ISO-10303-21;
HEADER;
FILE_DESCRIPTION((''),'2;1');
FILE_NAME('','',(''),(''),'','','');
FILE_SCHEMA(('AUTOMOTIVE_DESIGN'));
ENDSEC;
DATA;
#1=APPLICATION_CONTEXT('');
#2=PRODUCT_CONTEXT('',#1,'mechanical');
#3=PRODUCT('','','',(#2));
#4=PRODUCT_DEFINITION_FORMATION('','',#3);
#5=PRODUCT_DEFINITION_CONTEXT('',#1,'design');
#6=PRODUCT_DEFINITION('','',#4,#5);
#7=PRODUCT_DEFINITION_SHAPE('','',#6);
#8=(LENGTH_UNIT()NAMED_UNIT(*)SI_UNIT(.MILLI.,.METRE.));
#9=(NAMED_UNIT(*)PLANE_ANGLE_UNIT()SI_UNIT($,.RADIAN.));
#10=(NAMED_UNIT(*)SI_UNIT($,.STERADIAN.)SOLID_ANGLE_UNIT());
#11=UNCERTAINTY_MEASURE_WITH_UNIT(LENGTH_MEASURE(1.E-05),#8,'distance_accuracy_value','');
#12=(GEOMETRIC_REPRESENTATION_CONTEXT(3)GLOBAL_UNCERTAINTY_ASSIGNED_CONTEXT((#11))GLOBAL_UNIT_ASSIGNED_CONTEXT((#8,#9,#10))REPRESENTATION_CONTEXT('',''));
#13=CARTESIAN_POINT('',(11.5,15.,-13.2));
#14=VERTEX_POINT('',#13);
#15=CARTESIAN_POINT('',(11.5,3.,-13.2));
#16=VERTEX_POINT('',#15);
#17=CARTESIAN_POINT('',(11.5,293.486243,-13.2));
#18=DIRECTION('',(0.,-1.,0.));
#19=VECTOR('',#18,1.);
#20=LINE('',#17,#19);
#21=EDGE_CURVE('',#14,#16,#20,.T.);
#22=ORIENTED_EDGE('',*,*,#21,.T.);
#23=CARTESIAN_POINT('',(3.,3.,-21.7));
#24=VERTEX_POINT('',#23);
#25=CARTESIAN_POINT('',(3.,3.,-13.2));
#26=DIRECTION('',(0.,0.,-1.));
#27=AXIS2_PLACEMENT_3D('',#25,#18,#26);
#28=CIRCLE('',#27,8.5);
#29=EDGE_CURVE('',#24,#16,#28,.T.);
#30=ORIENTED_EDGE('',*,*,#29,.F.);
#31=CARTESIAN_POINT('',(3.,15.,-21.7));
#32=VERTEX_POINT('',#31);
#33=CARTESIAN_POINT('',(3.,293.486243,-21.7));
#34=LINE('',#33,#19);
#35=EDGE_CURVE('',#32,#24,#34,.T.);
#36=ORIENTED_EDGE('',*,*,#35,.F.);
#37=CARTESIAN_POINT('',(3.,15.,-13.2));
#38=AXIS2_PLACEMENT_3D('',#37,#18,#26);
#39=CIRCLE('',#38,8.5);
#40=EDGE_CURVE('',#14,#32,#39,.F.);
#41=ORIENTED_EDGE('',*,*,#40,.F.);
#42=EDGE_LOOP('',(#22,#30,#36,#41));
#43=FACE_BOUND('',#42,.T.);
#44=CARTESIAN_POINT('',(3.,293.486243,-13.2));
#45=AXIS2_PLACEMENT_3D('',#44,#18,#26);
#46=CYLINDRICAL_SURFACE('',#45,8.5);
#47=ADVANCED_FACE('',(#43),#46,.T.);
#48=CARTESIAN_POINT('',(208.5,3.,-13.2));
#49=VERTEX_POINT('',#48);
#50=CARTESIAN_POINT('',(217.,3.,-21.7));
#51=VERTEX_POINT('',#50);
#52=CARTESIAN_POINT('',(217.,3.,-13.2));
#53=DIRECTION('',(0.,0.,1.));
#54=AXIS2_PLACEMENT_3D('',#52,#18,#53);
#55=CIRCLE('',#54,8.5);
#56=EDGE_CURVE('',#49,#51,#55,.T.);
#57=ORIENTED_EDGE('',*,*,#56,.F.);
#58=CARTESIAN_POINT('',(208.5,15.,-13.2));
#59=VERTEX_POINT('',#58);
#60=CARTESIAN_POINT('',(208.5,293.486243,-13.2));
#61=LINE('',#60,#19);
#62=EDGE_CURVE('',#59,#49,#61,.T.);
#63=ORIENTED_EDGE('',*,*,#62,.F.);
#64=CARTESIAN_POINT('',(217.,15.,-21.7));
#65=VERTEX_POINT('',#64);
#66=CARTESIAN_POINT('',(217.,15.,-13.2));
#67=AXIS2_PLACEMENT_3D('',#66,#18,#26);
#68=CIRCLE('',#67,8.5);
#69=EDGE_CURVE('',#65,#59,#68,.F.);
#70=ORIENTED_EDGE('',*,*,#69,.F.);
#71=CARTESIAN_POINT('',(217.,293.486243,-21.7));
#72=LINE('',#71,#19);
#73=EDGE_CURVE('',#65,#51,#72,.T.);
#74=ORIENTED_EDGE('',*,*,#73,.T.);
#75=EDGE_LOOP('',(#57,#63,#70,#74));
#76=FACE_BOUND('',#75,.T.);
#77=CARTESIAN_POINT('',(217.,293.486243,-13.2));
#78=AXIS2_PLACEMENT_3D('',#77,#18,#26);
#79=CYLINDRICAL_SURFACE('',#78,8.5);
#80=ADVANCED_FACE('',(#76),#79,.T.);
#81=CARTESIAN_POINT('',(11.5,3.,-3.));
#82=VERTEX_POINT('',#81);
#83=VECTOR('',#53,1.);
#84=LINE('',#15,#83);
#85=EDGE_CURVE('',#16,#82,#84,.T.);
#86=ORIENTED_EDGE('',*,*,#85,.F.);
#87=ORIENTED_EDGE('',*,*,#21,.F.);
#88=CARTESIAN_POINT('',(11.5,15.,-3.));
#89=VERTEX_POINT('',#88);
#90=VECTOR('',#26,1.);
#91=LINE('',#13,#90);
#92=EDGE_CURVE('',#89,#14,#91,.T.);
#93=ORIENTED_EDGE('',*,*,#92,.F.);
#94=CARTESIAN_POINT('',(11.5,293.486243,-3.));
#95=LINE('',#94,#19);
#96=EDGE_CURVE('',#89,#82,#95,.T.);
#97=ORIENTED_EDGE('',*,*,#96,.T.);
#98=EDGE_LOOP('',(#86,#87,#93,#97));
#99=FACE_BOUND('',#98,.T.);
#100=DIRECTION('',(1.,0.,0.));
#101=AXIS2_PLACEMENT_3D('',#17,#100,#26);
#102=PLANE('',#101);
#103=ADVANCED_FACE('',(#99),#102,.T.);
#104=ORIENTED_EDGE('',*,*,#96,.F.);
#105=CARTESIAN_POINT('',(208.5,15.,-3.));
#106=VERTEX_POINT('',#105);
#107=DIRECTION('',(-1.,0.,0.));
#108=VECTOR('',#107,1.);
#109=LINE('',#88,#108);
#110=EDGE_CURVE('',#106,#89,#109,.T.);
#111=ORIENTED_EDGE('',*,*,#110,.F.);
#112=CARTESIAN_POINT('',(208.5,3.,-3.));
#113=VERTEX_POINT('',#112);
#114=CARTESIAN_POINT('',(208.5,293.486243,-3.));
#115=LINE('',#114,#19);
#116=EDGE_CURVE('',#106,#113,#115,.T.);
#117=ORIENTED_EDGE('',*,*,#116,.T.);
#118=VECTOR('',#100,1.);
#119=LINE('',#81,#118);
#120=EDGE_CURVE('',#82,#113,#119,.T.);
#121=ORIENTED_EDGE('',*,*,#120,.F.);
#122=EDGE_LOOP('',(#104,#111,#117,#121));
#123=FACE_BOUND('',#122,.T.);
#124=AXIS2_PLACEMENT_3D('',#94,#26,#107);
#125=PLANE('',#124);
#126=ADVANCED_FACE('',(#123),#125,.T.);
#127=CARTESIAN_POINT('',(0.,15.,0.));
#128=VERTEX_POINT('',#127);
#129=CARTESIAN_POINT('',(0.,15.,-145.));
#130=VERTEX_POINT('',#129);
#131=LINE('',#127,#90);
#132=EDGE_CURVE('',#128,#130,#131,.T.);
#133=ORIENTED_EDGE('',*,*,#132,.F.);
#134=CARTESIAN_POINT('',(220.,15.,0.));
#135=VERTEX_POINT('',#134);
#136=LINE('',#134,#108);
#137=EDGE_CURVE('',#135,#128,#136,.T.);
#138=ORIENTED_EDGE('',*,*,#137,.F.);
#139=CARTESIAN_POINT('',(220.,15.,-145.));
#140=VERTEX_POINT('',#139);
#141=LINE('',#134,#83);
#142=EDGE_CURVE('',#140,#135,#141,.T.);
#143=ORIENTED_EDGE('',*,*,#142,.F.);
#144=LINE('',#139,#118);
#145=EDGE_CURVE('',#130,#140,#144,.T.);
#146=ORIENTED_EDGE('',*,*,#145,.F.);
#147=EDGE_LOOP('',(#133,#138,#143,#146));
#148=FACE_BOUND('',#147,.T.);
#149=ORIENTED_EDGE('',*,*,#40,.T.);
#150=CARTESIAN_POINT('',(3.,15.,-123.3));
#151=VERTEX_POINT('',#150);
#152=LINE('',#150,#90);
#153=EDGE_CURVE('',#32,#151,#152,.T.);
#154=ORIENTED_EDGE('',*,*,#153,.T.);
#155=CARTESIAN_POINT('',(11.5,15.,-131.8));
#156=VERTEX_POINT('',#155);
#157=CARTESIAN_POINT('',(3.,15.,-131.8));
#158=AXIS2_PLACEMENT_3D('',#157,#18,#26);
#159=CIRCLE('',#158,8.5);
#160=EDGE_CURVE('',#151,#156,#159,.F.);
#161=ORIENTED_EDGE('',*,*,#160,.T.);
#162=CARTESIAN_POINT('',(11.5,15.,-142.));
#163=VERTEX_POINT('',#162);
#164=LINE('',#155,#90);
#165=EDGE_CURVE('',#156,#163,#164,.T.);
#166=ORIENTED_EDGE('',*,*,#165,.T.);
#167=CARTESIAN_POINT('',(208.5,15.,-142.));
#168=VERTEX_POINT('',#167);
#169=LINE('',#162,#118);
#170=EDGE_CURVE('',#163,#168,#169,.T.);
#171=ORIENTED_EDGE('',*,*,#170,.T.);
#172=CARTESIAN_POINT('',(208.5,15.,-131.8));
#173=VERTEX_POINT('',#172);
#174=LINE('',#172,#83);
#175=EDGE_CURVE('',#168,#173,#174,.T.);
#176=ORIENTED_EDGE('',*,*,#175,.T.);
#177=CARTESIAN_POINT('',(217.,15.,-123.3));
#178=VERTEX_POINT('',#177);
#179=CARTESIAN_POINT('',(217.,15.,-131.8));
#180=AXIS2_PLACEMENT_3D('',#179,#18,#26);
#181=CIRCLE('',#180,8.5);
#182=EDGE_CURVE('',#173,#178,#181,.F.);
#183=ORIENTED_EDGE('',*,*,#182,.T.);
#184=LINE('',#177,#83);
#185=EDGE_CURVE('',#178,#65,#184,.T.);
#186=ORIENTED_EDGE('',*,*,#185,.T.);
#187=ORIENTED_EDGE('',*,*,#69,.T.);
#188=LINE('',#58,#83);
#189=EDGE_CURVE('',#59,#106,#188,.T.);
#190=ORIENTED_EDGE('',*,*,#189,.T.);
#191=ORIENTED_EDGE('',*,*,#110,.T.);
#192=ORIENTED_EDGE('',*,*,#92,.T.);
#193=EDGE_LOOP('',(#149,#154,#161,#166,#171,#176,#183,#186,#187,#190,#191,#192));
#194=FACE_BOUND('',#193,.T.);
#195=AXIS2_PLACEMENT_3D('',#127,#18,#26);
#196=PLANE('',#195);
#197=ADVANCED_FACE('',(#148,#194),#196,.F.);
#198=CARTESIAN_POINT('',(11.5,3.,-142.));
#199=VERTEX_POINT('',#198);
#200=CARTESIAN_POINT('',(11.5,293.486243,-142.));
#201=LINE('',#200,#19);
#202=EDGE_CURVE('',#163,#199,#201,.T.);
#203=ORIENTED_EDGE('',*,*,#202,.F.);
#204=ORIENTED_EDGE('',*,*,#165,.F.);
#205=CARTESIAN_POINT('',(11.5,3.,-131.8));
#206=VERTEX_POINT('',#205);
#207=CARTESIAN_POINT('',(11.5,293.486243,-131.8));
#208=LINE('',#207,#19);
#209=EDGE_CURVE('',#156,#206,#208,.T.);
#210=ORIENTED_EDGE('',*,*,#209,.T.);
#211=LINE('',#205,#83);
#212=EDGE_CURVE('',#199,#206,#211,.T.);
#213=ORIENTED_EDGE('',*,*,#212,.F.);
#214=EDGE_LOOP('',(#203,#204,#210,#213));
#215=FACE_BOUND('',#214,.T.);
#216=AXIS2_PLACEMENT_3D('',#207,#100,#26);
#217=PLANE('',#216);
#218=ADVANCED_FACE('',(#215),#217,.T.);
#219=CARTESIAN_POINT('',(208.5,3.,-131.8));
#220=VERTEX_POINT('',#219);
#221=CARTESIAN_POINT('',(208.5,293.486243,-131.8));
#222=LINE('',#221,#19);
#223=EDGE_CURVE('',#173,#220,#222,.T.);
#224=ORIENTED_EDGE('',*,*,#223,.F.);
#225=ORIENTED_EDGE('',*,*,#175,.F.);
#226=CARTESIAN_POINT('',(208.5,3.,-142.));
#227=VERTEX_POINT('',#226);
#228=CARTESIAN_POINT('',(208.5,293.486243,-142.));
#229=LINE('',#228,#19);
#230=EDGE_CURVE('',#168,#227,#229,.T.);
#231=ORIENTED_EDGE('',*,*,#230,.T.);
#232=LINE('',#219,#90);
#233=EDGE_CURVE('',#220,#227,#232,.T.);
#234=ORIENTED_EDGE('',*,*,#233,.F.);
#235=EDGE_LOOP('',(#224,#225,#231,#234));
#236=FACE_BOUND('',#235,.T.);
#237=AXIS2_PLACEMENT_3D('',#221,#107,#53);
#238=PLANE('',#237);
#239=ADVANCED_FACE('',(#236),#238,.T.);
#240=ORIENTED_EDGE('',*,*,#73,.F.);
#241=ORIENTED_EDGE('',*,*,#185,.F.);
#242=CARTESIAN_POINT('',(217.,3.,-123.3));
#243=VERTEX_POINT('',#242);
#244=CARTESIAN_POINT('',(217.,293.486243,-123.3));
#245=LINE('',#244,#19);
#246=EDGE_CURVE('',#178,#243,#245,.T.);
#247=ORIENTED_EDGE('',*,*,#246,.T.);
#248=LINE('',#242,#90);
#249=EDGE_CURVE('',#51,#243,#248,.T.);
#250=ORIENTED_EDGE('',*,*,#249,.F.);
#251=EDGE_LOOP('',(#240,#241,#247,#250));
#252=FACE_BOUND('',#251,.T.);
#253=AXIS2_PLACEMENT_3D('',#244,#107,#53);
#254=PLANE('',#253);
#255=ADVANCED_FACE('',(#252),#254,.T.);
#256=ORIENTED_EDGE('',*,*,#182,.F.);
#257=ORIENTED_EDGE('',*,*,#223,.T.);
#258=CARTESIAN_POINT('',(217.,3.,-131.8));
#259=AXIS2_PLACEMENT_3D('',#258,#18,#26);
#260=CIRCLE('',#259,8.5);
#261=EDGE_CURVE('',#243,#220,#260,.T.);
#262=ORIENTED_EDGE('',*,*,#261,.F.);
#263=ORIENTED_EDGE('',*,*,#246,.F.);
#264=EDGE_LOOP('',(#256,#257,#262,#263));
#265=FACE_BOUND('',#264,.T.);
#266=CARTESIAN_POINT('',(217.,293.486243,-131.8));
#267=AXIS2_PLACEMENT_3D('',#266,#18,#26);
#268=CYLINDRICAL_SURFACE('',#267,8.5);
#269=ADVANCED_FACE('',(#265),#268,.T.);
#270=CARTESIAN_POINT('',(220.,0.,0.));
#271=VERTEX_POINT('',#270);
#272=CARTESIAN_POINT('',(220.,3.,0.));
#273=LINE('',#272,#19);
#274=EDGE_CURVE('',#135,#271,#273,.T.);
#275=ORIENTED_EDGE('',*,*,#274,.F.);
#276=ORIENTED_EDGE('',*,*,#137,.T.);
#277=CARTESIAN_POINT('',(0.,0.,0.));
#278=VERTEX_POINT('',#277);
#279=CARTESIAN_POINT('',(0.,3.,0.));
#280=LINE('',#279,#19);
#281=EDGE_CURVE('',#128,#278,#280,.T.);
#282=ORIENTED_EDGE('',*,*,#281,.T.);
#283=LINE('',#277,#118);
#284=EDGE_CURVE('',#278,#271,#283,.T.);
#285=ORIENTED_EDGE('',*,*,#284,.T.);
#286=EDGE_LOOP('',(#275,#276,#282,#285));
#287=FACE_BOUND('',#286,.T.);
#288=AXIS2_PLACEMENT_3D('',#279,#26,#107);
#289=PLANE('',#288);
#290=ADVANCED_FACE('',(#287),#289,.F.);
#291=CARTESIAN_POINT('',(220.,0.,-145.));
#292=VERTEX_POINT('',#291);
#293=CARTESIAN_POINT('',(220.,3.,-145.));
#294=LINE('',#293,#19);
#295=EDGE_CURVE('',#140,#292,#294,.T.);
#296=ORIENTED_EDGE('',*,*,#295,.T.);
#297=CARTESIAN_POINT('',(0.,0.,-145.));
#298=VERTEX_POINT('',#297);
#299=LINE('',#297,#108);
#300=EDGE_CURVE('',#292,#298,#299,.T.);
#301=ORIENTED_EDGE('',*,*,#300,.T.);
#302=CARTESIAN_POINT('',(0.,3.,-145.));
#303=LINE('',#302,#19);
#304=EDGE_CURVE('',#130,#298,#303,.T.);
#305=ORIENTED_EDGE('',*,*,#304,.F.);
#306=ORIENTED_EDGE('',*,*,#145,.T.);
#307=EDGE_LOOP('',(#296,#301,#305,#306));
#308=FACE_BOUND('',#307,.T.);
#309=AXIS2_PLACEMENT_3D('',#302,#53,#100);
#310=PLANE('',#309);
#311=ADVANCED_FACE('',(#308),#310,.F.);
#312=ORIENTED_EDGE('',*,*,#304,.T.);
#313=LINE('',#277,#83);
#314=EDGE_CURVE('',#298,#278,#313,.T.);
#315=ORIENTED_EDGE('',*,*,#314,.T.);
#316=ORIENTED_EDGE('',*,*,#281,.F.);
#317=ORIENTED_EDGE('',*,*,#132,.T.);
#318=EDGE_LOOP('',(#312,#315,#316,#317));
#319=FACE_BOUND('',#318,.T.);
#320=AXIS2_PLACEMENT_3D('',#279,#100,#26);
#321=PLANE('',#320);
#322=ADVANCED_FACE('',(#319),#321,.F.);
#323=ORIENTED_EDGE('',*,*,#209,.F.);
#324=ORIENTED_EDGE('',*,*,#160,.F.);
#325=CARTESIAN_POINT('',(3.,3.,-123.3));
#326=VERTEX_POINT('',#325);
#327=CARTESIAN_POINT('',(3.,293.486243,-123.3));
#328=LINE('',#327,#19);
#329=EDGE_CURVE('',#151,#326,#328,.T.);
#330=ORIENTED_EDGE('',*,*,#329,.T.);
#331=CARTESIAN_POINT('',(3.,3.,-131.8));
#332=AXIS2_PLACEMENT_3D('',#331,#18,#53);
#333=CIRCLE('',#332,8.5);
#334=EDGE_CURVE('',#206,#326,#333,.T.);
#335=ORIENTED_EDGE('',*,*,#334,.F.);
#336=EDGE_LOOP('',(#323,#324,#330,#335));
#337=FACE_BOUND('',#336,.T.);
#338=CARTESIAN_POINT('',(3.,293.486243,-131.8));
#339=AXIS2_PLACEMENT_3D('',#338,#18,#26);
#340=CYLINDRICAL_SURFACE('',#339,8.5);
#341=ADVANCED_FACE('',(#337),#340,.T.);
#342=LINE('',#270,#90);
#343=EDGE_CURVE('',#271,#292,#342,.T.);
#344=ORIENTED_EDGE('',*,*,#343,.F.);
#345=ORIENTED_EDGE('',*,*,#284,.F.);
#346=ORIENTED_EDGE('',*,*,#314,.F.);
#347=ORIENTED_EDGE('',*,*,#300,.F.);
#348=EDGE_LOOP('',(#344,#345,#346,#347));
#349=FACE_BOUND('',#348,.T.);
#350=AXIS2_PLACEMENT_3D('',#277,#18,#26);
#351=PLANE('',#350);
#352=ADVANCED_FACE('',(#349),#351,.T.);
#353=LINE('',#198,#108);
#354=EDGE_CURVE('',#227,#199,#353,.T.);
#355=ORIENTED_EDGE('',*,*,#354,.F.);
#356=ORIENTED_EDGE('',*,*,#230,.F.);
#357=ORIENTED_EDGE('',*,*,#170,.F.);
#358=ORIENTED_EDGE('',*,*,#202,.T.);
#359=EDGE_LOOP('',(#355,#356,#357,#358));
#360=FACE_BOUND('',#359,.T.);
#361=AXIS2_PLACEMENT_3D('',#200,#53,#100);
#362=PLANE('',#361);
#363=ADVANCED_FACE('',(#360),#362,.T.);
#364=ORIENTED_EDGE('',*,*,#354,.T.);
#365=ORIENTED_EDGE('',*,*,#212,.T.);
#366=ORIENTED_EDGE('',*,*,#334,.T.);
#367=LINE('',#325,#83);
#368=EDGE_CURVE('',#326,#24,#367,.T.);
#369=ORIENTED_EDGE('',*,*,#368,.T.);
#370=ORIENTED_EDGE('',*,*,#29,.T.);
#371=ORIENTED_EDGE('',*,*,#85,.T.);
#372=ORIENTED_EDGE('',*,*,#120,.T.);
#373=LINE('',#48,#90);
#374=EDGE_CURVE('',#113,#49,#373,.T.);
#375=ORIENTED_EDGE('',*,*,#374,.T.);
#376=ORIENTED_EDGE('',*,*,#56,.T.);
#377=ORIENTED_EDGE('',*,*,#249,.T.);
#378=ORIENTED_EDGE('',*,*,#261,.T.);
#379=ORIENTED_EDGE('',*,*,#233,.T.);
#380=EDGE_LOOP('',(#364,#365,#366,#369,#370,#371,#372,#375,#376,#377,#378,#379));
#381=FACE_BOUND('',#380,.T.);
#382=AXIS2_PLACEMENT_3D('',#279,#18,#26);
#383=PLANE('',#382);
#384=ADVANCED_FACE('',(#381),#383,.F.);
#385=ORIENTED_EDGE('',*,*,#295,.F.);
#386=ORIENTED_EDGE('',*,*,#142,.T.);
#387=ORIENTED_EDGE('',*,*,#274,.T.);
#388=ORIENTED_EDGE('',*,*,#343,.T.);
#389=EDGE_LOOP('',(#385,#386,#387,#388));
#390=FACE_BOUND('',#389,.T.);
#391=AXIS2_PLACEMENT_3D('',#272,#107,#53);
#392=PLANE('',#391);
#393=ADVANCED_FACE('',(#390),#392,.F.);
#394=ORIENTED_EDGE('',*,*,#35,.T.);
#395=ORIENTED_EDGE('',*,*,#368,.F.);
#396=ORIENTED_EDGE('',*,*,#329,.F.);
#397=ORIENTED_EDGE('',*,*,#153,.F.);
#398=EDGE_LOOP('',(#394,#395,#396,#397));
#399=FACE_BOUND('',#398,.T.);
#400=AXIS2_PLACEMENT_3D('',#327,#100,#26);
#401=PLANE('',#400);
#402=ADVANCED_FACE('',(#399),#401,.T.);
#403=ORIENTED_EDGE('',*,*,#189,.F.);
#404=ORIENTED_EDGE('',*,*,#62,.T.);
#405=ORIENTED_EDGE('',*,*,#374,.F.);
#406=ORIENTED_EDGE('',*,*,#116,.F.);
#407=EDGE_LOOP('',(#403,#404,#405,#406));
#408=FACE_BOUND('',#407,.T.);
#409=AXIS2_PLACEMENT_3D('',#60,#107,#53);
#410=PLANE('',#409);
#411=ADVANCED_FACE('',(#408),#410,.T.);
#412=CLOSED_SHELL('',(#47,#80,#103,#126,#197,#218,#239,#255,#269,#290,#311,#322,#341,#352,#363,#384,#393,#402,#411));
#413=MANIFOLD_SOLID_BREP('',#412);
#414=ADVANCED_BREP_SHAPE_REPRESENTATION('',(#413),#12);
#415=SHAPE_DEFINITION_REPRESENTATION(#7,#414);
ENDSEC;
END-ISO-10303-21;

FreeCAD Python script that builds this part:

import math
import FreeCAD as App
import Part
import Sketcher


def add_polygon(sketch, points):
    """Adds a closed chain of lines whose ends are joined by coincident constraints."""
    first, n = sketch.GeometryCount, len(points)
    for a, b in zip(points, points[1:] + points[:1]):
        sketch.addGeometry(Part.LineSegment(App.Vector(*a, 0), App.Vector(*b, 0)), False)
    for i in range(n):
        sketch.addConstraint(Sketcher.Constraint("Coincident", first + i, 2, first + (i + 1) % n, 1))

doc = App.newDocument("Part")
body = doc.addObject("PartDesign::Body", "Body")

sketch1 = body.newObject("Sketcher::SketchObject", "Sketch")
sketch1.AttachmentSupport = (doc.getObject("XZ_Plane"), [""])
sketch1.MapMode = "FlatFace"
add_polygon(sketch1, [(0, -145), (0, 0), (220, 0), (220, -145)])
sketch1.addConstraint([
    Sketcher.Constraint("Vertical", 0),
    Sketcher.Constraint("Horizontal", 1),
    Sketcher.Constraint("Vertical", 2),
    Sketcher.Constraint("Horizontal", 3),
    Sketcher.Constraint("Coincident", 0, 2, -1, 1),
    Sketcher.Constraint("DistanceX", 1, 1, 1, 2, 220.0),
    Sketcher.Constraint("DistanceY", 0, 1, 0, 2, 145.0),
])
pad1 = body.newObject("PartDesign::Pad", "Pad")
pad1.Profile = sketch1
pad1.Length = 3
pad1.Reversed = True

sketch2 = body.newObject("Sketcher::SketchObject", "Sketch001")
sketch2.AttachmentSupport = (doc.getObject("XZ_Plane"), [""])
sketch2.MapMode = "FlatFace"
sketch2.AttachmentOffset = App.Placement(App.Vector(0, 0, -3), App.Rotation())
add_polygon(sketch2, [(0, -145), (0, 0), (220, 0), (220, -145)])
sketch2.addGeometry(Part.LineSegment(App.Vector(3, -21.7, 0), App.Vector(3, -123.3, 0)), False)
sketch2.addGeometry(Part.ArcOfCircle(Part.Circle(App.Vector(3, -131.8, 0), App.Vector(0, 0, 1), 8.5), math.radians(0), math.radians(90)), False)
sketch2.addGeometry(Part.LineSegment(App.Vector(11.5, -131.8, 0), App.Vector(11.5, -142, 0)), False)
sketch2.addGeometry(Part.LineSegment(App.Vector(11.5, -142, 0), App.Vector(208.5, -142, 0)), False)
sketch2.addGeometry(Part.LineSegment(App.Vector(208.5, -142, 0), App.Vector(208.5, -131.8, 0)), False)
sketch2.addGeometry(Part.ArcOfCircle(Part.Circle(App.Vector(217, -131.8, 0), App.Vector(0, 0, 1), 8.5), math.radians(90), math.radians(180)), False)
sketch2.addGeometry(Part.LineSegment(App.Vector(217, -123.3, 0), App.Vector(217, -21.7, 0)), False)
sketch2.addGeometry(Part.ArcOfCircle(Part.Circle(App.Vector(217, -13.2, 0), App.Vector(0, 0, 1), 8.5), math.radians(180), math.radians(270)), False)
sketch2.addGeometry(Part.LineSegment(App.Vector(208.5, -13.2, 0), App.Vector(208.5, -3, 0)), False)
sketch2.addGeometry(Part.LineSegment(App.Vector(208.5, -3, 0), App.Vector(11.5, -3, 0)), False)
sketch2.addGeometry(Part.LineSegment(App.Vector(11.5, -3, 0), App.Vector(11.5, -13.2, 0)), False)
sketch2.addGeometry(Part.ArcOfCircle(Part.Circle(App.Vector(3, -13.2, 0), App.Vector(0, 0, 1), 8.5), math.radians(-90), math.radians(0)), False)
sketch2.addConstraint([
    Sketcher.Constraint("Coincident", 4, 2, 5, 2),
    Sketcher.Constraint("Tangent", 5, 1, 6, 1),
    Sketcher.Constraint("Coincident", 6, 2, 7, 1),
    Sketcher.Constraint("Coincident", 7, 2, 8, 1),
    Sketcher.Constraint("Tangent", 8, 2, 9, 2),
    Sketcher.Constraint("Coincident", 9, 1, 10, 1),
    Sketcher.Constraint("Coincident", 10, 2, 11, 2),
    Sketcher.Constraint("Tangent", 11, 1, 12, 1),
    Sketcher.Constraint("Coincident", 12, 2, 13, 1),
    Sketcher.Constraint("Coincident", 13, 2, 14, 1),
    Sketcher.Constraint("Tangent", 14, 2, 15, 2),
    Sketcher.Constraint("Coincident", 15, 1, 4, 1),
    Sketcher.Constraint("Vertical", 0),
    Sketcher.Constraint("Horizontal", 1),
    Sketcher.Constraint("Vertical", 2),
    Sketcher.Constraint("Horizontal", 3),
    Sketcher.Constraint("Vertical", 4),
    Sketcher.Constraint("Vertical", 6),
    Sketcher.Constraint("Horizontal", 7),
    Sketcher.Constraint("Vertical", 8),
    Sketcher.Constraint("Vertical", 10),
    Sketcher.Constraint("Vertical", 12),
    Sketcher.Constraint("Horizontal", 13),
    Sketcher.Constraint("Vertical", 14),
    Sketcher.Constraint("Coincident", 0, 2, -1, 1),
    Sketcher.Constraint("Equal", 5, 9),
    Sketcher.Constraint("Equal", 9, 11),
    Sketcher.Constraint("Equal", 11, 15),
    Sketcher.Constraint("Horizontal", 5, 3, 9, 3),
    Sketcher.Constraint("Horizontal", 11, 3, 15, 3),
    Sketcher.Constraint("Vertical", 9, 3, 11, 3),
    Sketcher.Constraint("Vertical", 5, 3, 15, 3),
    Sketcher.Constraint("Vertical", 15, 3, 4, 2),
    Sketcher.Constraint("Vertical", 11, 3, 9, 1),
    Sketcher.Constraint("Equal", 8, 12),
    Sketcher.Constraint("Radius", 5, 8.5),
    Sketcher.Constraint("DistanceX", 1, 1, 1, 2, 220.0),
    Sketcher.Constraint("DistanceX", 7, 1, 7, 2, 197.0),
    Sketcher.Constraint("DistanceY", 0, 1, 0, 2, 145.0),
    Sketcher.Constraint("DistanceY", 4, 2, 4, 1, 101.6),
    Sketcher.Constraint("DistanceY", 6, 2, 6, 1, 10.2),
    Sketcher.Constraint("DistanceX", -1, 1, 5, 3, 3.0),
    Sketcher.Constraint("DistanceY", 6, 2, -1, 1, 142.0),
])
pad2 = body.newObject("PartDesign::Pad", "Pad001")
pad2.Profile = sketch2
pad2.Length = 12
pad2.Reversed = True

doc.recompute()
